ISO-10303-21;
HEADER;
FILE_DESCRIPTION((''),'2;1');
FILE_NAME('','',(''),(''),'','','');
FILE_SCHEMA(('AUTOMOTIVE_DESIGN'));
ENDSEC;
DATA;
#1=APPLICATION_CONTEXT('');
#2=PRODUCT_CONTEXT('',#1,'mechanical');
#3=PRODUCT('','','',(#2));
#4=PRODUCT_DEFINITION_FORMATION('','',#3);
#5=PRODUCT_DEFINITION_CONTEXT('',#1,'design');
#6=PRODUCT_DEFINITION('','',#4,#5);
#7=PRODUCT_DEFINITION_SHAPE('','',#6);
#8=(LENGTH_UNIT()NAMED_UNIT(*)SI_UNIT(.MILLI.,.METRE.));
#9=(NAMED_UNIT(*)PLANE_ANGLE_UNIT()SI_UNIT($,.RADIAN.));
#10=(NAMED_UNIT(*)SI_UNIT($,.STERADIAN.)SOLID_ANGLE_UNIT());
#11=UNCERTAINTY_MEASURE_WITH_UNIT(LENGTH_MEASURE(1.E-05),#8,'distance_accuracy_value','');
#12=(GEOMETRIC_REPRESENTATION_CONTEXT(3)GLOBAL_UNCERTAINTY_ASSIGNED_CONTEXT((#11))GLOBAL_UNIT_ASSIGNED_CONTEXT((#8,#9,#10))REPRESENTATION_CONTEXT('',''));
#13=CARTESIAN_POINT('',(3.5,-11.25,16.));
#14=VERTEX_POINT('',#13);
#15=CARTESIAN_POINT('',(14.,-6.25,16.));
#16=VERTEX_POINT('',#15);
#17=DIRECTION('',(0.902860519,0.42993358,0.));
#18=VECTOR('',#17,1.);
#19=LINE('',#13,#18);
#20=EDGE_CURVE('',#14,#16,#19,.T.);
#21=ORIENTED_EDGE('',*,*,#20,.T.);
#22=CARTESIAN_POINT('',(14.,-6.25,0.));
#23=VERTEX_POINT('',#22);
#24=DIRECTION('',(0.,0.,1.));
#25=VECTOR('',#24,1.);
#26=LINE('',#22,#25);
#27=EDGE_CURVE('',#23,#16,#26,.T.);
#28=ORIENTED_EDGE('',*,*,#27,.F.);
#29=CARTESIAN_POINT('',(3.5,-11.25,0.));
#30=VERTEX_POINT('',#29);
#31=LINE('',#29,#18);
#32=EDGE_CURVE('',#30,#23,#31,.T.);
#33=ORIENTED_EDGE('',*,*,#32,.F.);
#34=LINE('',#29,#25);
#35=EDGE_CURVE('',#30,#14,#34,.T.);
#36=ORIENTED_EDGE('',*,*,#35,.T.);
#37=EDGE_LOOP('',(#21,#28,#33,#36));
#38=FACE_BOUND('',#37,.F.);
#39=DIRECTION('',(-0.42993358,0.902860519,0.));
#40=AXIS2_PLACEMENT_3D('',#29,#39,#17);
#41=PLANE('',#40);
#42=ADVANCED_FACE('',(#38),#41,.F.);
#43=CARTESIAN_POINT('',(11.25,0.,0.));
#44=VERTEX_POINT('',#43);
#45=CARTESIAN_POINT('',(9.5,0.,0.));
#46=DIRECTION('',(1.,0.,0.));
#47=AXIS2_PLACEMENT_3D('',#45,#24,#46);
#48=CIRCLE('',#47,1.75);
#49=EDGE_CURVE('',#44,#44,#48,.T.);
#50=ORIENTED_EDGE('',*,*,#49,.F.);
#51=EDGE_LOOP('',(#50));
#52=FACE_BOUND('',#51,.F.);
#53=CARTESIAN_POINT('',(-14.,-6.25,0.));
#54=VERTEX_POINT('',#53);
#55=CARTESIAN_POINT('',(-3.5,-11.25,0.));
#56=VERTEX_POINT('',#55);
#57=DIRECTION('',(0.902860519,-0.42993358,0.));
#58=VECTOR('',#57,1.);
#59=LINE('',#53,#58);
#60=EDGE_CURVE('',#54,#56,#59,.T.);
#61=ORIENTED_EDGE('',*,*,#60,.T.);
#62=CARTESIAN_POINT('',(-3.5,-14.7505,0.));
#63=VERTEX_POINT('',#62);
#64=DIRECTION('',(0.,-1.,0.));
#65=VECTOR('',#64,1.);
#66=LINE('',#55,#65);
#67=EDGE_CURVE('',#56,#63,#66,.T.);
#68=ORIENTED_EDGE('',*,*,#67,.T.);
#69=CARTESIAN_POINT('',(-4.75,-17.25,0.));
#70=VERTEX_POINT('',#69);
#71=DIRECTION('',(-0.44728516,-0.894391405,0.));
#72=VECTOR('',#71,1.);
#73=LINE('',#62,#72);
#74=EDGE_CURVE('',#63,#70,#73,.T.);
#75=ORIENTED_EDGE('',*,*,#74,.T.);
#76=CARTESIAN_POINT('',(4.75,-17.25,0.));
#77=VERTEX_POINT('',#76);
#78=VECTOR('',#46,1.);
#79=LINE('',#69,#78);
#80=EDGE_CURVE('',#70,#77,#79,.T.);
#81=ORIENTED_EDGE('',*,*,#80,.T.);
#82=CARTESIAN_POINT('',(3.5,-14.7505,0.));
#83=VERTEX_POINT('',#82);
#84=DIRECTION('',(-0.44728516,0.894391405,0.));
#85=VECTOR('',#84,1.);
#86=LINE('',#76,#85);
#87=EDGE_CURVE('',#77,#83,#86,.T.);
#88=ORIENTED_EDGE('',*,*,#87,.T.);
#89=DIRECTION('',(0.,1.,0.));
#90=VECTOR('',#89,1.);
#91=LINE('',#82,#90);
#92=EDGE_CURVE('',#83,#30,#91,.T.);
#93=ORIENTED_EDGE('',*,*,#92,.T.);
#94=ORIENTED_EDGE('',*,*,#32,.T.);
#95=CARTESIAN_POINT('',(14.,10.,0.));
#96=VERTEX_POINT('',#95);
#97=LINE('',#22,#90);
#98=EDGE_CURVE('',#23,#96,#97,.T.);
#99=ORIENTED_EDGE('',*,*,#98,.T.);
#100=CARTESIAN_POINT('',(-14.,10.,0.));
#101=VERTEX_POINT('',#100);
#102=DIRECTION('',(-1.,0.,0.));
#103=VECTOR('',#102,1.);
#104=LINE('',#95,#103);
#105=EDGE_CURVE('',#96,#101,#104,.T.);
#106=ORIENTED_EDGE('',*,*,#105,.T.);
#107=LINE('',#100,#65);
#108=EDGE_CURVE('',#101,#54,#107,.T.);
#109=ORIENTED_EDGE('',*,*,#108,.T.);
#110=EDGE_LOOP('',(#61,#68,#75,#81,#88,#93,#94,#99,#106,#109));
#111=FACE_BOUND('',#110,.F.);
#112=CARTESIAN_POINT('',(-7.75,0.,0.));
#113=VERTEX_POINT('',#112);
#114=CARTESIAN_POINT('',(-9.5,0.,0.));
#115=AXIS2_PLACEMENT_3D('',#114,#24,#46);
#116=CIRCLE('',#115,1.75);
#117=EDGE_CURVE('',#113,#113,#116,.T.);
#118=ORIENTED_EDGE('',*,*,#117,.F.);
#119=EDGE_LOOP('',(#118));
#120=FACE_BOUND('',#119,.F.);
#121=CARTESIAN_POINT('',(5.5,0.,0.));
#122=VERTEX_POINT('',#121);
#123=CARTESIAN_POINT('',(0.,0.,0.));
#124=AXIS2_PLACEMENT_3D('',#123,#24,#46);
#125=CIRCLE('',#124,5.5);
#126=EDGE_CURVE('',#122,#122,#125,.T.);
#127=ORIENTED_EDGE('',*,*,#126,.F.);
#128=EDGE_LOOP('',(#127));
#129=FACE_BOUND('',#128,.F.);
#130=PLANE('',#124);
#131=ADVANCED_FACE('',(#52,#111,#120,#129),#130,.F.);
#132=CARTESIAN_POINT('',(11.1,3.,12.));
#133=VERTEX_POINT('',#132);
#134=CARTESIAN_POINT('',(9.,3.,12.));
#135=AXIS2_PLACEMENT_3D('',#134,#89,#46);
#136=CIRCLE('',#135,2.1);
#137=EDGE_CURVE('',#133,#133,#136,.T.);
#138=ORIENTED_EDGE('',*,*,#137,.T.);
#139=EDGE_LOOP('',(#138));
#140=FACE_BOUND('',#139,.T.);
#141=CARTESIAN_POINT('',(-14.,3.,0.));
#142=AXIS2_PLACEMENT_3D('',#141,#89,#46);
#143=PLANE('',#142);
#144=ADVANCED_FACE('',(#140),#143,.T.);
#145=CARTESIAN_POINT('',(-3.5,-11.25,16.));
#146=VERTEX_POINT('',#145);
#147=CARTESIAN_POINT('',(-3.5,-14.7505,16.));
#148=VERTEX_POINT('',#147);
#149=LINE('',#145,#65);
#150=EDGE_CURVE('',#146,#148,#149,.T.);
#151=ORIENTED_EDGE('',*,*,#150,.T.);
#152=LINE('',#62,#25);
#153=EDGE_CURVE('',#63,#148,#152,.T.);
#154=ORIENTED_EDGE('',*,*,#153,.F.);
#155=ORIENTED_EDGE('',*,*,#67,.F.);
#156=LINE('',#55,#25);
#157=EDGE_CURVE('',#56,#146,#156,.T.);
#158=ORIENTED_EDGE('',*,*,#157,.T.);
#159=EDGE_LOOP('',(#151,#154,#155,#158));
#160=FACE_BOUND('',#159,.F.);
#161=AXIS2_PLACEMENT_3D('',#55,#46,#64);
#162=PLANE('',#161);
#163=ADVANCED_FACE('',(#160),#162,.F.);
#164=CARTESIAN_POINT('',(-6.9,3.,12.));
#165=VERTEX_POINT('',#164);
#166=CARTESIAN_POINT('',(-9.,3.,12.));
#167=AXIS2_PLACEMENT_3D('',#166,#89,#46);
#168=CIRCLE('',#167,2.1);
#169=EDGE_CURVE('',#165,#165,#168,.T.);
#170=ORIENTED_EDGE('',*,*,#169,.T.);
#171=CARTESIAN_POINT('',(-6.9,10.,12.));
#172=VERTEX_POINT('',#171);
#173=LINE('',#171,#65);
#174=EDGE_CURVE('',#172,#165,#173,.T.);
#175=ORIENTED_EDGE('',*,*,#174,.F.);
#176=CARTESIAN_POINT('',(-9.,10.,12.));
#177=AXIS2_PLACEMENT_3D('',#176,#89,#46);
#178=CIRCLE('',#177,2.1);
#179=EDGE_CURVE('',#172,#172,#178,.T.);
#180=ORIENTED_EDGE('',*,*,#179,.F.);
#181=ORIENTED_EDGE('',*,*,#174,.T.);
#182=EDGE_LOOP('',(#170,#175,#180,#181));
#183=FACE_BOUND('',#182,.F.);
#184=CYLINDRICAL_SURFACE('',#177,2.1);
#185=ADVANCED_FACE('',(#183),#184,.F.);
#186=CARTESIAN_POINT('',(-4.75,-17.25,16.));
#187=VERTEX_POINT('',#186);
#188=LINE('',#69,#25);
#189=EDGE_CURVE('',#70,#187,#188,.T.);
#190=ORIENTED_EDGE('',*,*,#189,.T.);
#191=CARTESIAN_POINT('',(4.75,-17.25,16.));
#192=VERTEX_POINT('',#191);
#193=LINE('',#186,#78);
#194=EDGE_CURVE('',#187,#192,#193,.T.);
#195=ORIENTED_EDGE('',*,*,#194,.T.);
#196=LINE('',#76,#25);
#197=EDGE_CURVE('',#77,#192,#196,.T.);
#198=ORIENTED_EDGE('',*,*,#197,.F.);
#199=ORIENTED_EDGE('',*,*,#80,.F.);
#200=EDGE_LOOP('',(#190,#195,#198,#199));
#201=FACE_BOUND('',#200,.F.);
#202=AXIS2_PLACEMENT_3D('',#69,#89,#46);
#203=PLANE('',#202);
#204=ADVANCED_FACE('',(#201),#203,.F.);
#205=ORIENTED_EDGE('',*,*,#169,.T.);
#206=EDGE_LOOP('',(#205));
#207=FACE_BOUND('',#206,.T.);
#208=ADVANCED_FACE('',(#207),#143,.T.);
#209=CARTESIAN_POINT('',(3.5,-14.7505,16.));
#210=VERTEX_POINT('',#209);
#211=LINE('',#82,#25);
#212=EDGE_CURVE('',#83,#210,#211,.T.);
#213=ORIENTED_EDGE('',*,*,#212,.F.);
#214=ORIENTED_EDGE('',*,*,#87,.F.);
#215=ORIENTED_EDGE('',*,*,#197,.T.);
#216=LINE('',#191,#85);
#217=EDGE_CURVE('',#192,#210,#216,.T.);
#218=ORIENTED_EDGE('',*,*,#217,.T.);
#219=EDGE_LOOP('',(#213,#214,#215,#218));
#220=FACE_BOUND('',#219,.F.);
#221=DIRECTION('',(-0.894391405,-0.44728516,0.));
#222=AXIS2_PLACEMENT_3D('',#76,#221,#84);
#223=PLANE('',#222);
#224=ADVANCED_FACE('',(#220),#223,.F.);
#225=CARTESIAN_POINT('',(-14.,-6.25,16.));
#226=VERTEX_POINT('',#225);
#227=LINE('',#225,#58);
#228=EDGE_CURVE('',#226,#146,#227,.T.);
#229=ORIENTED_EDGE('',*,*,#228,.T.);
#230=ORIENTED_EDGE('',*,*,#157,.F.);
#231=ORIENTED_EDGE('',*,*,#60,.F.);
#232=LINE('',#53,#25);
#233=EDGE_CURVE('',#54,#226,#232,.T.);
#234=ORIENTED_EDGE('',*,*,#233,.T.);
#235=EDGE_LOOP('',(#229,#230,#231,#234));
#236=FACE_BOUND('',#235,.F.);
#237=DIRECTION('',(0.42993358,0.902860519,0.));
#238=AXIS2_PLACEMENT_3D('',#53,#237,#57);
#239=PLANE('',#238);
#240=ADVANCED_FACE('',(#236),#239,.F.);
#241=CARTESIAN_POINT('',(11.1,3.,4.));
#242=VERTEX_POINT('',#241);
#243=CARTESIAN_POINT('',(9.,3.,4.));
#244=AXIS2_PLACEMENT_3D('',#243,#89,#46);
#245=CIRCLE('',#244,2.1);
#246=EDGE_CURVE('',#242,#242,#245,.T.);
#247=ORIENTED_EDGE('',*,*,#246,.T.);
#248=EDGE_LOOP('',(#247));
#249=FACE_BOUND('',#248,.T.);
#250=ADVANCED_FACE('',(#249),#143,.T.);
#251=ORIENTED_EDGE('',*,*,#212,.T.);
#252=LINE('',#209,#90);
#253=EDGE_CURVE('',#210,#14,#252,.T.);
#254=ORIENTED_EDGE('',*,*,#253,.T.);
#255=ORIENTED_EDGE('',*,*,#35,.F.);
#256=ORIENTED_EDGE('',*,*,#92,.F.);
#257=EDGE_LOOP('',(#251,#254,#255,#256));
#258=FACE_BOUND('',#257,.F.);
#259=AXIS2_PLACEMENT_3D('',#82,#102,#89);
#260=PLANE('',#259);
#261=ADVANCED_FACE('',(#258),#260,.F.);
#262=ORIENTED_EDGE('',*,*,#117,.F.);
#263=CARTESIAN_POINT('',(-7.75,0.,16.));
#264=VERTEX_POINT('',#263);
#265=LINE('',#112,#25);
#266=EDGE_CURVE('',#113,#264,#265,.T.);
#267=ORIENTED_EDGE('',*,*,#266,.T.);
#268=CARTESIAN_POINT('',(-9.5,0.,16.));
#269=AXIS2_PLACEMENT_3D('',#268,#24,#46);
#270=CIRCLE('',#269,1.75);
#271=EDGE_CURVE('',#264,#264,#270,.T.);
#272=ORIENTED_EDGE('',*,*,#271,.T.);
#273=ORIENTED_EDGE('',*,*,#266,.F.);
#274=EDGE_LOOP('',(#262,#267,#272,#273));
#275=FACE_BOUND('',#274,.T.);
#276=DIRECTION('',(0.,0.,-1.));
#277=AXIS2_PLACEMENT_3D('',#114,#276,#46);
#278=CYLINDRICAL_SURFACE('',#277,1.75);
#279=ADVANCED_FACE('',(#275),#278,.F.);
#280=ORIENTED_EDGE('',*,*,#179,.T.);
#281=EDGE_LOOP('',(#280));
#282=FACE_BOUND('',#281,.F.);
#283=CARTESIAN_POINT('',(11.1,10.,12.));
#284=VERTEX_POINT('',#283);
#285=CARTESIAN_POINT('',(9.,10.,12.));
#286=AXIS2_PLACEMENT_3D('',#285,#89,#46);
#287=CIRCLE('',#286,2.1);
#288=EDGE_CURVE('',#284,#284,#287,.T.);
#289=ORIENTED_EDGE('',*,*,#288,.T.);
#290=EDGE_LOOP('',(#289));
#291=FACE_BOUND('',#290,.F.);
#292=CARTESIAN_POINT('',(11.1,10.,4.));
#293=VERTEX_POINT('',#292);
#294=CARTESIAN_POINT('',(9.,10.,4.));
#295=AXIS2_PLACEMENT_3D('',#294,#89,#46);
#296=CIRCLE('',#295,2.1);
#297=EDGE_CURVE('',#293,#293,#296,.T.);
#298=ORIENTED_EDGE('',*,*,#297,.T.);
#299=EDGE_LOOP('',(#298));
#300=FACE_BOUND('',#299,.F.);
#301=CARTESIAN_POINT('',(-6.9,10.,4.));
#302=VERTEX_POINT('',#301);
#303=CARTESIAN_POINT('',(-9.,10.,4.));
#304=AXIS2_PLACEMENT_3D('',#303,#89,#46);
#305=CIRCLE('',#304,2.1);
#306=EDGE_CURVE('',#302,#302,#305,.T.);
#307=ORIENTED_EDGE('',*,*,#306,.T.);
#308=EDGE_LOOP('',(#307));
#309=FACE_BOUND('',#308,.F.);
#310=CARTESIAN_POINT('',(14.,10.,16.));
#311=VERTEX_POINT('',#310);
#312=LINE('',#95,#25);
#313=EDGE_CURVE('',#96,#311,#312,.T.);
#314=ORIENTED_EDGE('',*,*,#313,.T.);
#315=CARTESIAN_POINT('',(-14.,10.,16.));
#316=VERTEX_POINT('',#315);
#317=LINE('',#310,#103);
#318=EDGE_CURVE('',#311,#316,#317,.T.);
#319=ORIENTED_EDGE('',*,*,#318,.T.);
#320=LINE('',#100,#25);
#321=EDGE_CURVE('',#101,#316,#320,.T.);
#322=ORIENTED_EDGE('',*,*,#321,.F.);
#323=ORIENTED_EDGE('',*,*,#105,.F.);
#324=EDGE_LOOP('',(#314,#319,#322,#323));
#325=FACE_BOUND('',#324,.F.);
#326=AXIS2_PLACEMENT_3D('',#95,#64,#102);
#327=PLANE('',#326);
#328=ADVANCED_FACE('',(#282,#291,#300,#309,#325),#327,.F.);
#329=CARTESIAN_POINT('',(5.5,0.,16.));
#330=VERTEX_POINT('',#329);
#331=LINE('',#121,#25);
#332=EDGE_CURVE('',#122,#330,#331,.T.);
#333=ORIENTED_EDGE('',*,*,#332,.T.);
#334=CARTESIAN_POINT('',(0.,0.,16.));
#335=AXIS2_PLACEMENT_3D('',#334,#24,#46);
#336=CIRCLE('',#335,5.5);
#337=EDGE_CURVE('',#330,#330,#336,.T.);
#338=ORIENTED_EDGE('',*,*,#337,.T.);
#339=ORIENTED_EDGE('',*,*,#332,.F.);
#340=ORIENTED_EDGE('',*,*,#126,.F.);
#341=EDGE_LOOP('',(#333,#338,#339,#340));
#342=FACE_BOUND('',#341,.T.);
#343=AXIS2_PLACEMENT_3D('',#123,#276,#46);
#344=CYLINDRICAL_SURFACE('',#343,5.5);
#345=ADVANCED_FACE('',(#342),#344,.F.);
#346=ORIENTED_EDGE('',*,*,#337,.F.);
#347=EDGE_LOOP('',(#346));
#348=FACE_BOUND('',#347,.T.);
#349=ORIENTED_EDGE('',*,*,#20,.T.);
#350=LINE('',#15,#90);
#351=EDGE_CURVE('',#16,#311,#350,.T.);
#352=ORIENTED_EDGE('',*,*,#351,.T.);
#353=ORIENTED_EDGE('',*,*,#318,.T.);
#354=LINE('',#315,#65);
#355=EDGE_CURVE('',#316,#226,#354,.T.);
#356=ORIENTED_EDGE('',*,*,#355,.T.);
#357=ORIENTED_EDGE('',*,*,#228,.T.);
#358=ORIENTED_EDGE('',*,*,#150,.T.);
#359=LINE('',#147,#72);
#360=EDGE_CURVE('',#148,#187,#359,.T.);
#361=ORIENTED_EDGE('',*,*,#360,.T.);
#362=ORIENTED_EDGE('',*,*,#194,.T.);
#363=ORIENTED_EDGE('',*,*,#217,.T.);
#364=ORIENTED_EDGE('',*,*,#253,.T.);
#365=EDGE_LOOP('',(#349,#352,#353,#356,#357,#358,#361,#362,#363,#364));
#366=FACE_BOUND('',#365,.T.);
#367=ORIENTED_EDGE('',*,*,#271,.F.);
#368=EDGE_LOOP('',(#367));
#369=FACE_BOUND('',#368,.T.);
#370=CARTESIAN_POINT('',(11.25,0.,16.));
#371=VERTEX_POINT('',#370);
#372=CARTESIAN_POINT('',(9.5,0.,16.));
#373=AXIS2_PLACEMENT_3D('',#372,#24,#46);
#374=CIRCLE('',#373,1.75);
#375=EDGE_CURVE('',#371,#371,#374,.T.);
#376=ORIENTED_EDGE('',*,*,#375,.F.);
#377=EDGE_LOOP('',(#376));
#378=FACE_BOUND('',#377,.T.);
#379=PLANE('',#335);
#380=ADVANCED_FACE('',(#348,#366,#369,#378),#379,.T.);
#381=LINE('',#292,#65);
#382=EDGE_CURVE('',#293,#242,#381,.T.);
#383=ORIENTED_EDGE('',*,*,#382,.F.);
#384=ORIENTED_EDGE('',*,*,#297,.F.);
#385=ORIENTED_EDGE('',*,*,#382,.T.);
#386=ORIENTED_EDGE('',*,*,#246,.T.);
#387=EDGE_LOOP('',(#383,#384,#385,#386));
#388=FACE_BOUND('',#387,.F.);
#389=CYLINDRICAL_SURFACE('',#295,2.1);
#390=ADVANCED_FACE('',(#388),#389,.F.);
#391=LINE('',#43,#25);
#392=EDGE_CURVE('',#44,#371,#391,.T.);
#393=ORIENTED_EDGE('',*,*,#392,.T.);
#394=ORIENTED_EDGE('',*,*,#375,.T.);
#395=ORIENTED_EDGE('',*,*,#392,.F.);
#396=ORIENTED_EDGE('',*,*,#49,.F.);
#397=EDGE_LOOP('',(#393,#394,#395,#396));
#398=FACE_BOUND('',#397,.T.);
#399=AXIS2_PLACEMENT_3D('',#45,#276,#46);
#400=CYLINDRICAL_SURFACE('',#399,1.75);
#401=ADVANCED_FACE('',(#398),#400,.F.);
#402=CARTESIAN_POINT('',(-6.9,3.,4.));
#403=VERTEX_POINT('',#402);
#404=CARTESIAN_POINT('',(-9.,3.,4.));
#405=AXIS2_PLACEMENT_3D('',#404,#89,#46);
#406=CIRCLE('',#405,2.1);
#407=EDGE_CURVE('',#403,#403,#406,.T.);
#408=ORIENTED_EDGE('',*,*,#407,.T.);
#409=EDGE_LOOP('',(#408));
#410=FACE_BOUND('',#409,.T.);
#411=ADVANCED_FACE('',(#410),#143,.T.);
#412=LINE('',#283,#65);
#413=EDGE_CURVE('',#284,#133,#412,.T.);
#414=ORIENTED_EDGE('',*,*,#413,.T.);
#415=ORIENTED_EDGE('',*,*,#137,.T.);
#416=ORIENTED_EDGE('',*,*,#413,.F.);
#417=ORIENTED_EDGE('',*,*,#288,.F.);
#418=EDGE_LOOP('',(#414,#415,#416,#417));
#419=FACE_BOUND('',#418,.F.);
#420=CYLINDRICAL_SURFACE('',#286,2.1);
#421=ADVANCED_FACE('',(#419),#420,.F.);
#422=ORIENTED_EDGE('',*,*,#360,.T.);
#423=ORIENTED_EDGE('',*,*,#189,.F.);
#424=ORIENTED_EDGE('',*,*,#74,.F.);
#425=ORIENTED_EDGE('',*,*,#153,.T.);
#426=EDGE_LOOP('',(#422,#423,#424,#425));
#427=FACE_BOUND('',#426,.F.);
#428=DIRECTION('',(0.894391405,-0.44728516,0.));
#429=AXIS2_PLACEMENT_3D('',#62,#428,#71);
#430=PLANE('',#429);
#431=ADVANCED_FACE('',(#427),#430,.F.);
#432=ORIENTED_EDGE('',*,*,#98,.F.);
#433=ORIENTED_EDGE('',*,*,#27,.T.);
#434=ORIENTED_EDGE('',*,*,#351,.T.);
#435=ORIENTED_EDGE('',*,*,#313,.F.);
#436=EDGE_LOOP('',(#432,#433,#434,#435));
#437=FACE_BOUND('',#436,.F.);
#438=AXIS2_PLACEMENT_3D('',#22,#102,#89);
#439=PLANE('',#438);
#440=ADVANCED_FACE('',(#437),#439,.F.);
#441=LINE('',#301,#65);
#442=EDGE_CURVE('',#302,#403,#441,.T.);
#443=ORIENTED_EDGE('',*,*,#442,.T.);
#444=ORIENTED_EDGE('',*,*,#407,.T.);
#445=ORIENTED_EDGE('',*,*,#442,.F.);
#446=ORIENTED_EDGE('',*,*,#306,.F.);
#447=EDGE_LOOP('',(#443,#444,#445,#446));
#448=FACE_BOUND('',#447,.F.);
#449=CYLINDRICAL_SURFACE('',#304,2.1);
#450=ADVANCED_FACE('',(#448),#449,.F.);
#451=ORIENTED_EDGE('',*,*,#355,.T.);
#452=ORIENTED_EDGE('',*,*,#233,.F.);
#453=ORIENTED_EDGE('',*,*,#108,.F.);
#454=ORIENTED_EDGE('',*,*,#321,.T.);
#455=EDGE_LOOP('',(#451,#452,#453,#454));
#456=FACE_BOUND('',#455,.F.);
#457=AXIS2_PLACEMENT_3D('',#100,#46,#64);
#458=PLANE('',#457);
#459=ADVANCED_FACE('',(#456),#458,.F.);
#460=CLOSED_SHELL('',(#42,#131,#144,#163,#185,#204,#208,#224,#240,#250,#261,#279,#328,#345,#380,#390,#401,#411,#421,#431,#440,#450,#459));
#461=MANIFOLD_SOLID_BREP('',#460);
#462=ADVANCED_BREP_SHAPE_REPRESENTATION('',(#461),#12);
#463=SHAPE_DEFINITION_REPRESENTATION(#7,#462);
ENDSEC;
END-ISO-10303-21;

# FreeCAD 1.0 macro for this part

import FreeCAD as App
import Part
import Sketcher

doc = App.newDocument("Part")
params = doc.addObject("Spreadsheet::Sheet", "Params")
for row, (alias, value) in enumerate([
    ("sketch1_diameter", "11 mm"),
    ("sketch1_diameter2", "3.5 mm"),
    ("sketch1_width", "28 mm"),
    ("sketch1_width2", "9.5 mm"),
    ("pad1_length", "16 mm"),
    ("sketch2_diameter", "4.2 mm"),
    ("pocket1_length", "7 mm"),
], start=1):
    params.set(f"A{row}", alias)
    params.set(f"B{row}", "=" + value)
    params.setAlias(f"B{row}", alias)

body = doc.addObject("PartDesign::Body", "Body")

sketch1 = body.newObject("Sketcher::SketchObject", "Sketch")
sketch1.AttachmentSupport = (doc.getObject("XY_Plane"), [""])
sketch1.MapMode = "FlatFace"
sketch1.addGeometry([
    Part.LineSegment(App.Vector(-14, -6.2, 0), App.Vector(-3.5, -11.2, 0)),
    Part.LineSegment(App.Vector(-3.5, -11.2, 0), App.Vector(-3.5, -14.8, 0)),
    Part.LineSegment(App.Vector(-3.5, -14.8, 0), App.Vector(-4.8, -17.2, 0)),
    Part.LineSegment(App.Vector(-4.8, -17.2, 0), App.Vector(4.8, -17.2, 0)),
    Part.LineSegment(App.Vector(4.8, -17.2, 0), App.Vector(3.5, -14.8, 0)),
    Part.LineSegment(App.Vector(3.5, -14.8, 0), App.Vector(3.5, -11.2, 0)),
    Part.LineSegment(App.Vector(3.5, -11.2, 0), App.Vector(14, -6.2, 0)),
    Part.LineSegment(App.Vector(14, -6.2, 0), App.Vector(14, 10, 0)),
    Part.LineSegment(App.Vector(14, 10, 0), App.Vector(-14, 10, 0)),
    Part.LineSegment(App.Vector(-14, 10, 0), App.Vector(-14, -6.2, 0)),
    Part.Circle(App.Vector(-9.5, 0, 0), App.Vector(0, 0, 1), 1.8),
    Part.Circle(App.Vector(0, 0, 0), App.Vector(0, 0, 1), 5.5),
    Part.Circle(App.Vector(9.5, 0, 0), App.Vector(0, 0, 1), 1.8),
], False)
sketch1.addConstraint([
    Sketcher.Constraint("Coincident", 0, 2, 1, 1),
    Sketcher.Constraint("Coincident", 1, 2, 2, 1),
    Sketcher.Constraint("Coincident", 2, 2, 3, 1),
    Sketcher.Constraint("Coincident", 3, 2, 4, 1),
    Sketcher.Constraint("Coincident", 4, 2, 5, 1),
    Sketcher.Constraint("Coincident", 5, 2, 6, 1),
    Sketcher.Constraint("Coincident", 6, 2, 7, 1),
    Sketcher.Constraint("Coincident", 7, 2, 8, 1),
    Sketcher.Constraint("Coincident", 8, 2, 9, 1),
    Sketcher.Constraint("Coincident", 9, 2, 0, 1),
    Sketcher.Constraint("Vertical", 1),
    Sketcher.Constraint("Horizontal", 3),
    Sketcher.Constraint("Vertical", 5),
    Sketcher.Constraint("Vertical", 7),
    Sketcher.Constraint("Horizontal", 8),
    Sketcher.Constraint("Vertical", 9),
    Sketcher.Constraint("Coincident", 11, 3, -1, 1),
    Sketcher.Constraint("Equal", 10, 12),
    Sketcher.Constraint("Symmetric", 10, 3, 12, 3, -1, 1),
    Sketcher.Constraint("Symmetric", 1, 2, 4, 2, -2),
    Sketcher.Constraint("Symmetric", 6, 2, 9, 2, -2),
    Sketcher.Constraint("PointOnObject", 10, 3, -1),
    Sketcher.Constraint("Horizontal", 0, 2, 5, 2),
    Sketcher.Constraint("Equal", 2, 4),
    Sketcher.Constraint("Diameter", 11, 11.0),
    Sketcher.Constraint("Diameter", 10, 3.5),
    Sketcher.Constraint("DistanceX", 8, 2, 8, 1, 28.0),
    Sketcher.Constraint("DistanceX", 3, 1, 3, 2, 9.5),
    Sketcher.Constraint("DistanceY", -1, 1, 7, 2, 10.0),
    Sketcher.Constraint("DistanceX", 10, 3, 12, 3, 19.0),
    Sketcher.Constraint("DistanceX", 10, 3, 0, 2, 6.0),
    Sketcher.Constraint("DistanceY", 2, 2, 0, 2, 6.0),
    Sketcher.Constraint("DistanceY", 5, 2, 6, 2, 5.0),
    Sketcher.Constraint("DistanceY", 2, 2, -1, 1, 17.25),
    Sketcher.Constraint("DistanceY", 1, 2, 1, 1, 3.5005),
])
sketch1.setExpression("Constraints[24]", "Params.sketch1_diameter")
sketch1.setExpression("Constraints[25]", "Params.sketch1_diameter2")
sketch1.setExpression("Constraints[26]", "Params.sketch1_width")
sketch1.setExpression("Constraints[27]", "Params.sketch1_width2")
pad1 = body.newObject("PartDesign::Pad", "Pad")
pad1.Profile = sketch1
pad1.setExpression("Length", "Params.pad1_length")

sketch2 = body.newObject("Sketcher::SketchObject", "Sketch001")
sketch2.AttachmentSupport = (doc.getObject("XZ_Plane"), [""])
sketch2.MapMode = "FlatFace"
sketch2.AttachmentOffset = App.Placement(App.Vector(0, 0, -10), App.Rotation())
sketch2.addGeometry([
    Part.Circle(App.Vector(-9, 4, 0), App.Vector(0, 0, 1), 2.1),
    Part.Circle(App.Vector(-9, 12, 0), App.Vector(0, 0, 1), 2.1),
    Part.Circle(App.Vector(9, 12, 0), App.Vector(0, 0, 1), 2.1),
    Part.Circle(App.Vector(9, 4, 0), App.Vector(0, 0, 1), 2.1),
], False)
sketch2.addConstraint([
    Sketcher.Constraint("Equal", 0, 1),
    Sketcher.Constraint("Equal", 1, 2),
    Sketcher.Constraint("Equal", 2, 3),
    Sketcher.Constraint("Symmetric", 1, 3, 2, 3, -2),
    Sketcher.Constraint("Symmetric", 0, 3, 3, 3, -2),
    Sketcher.Constraint("Vertical", 0, 3, 1, 3),
    Sketcher.Constraint("Diameter", 0, 4.2),
    Sketcher.Constraint("DistanceX", 0, 3, -1, 1, 9.0),
    Sketcher.Constraint("DistanceY", -1, 1, 0, 3, 4.0),
    Sketcher.Constraint("DistanceY", -1, 1, 1, 3, 12.0),
])
sketch2.setExpression("Constraints[6]", "Params.sketch2_diameter")
pocket1 = body.newObject("PartDesign::Pocket", "Pocket")
pocket1.Profile = sketch2
pocket1.setExpression("Length", "Params.pocket1_length")
pocket1.Reversed = True

doc.recompute()
